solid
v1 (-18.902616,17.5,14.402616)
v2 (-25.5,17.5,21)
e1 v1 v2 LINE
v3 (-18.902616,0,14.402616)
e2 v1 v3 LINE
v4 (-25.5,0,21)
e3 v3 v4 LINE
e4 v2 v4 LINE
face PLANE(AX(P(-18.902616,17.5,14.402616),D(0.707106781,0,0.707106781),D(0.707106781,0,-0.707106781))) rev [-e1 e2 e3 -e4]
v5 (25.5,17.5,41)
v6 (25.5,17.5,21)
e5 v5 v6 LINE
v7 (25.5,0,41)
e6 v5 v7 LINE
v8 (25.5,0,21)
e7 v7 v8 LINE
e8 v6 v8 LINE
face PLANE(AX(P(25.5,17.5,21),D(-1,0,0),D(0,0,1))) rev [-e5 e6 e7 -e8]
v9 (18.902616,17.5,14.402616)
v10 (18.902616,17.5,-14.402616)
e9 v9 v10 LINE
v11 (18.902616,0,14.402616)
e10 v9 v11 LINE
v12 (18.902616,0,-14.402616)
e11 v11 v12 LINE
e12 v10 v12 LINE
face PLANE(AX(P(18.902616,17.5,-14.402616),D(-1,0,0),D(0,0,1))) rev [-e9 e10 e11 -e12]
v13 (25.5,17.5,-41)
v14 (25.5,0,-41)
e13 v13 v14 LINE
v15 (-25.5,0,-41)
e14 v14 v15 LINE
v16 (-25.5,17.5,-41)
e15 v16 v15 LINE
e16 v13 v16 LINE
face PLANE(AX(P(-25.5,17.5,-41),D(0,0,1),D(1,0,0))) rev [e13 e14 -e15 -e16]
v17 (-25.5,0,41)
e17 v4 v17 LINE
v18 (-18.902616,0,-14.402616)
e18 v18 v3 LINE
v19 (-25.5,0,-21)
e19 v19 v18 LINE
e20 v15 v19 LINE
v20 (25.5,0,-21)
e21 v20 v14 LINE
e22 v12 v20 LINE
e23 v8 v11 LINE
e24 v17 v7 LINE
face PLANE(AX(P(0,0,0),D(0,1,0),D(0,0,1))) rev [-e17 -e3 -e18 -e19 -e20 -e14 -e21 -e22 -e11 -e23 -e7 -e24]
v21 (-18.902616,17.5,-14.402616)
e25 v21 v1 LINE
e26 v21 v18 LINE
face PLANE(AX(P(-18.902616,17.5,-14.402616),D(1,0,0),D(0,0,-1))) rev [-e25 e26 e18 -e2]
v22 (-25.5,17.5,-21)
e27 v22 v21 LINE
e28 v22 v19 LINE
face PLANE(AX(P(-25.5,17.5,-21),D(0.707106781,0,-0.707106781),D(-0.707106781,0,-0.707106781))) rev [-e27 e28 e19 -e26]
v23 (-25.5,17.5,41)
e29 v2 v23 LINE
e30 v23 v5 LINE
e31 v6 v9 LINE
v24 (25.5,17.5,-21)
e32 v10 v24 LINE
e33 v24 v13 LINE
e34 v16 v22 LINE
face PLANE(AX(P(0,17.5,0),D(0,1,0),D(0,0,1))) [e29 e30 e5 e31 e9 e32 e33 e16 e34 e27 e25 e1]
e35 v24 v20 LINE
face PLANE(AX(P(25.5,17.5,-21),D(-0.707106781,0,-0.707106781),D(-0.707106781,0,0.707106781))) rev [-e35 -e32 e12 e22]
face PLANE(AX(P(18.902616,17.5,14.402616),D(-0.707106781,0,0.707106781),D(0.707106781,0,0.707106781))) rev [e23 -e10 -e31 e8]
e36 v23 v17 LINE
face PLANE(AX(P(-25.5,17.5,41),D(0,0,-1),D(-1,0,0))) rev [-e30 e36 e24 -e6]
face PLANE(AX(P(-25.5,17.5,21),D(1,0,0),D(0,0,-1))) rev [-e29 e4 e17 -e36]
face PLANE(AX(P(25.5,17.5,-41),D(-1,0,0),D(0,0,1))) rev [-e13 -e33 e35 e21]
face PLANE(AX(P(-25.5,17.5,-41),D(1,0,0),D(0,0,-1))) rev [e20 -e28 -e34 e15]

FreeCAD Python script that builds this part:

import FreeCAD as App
import Part
import Sketcher

V = App.Vector
Q = App.Units.Quantity

doc = App.newDocument("Part")
body = doc.addObject("PartDesign::Body", "Body")

sketch1 = body.newObject("Sketcher::SketchObject", "Sketch")
sketch1.AttachmentSupport = (doc.getObject("XZ_Plane"), [""])
sketch1.MapMode = "FlatFace"
sketch1.addGeometry(Part.LineSegment(V(-26, -21, 0), V(-19, -14, 0)), False)
sketch1.addGeometry(Part.LineSegment(V(-19, -14, 0), V(-19, 14, 0)), False)
sketch1.addGeometry(Part.LineSegment(V(-19, 14, 0), V(-26, 21, 0)), False)
sketch1.addGeometry(Part.LineSegment(V(-26, 21, 0), V(-26, 41, 0)), False)
sketch1.addGeometry(Part.LineSegment(V(-26, 41, 0), V(26, 41, 0)), False)
sketch1.addGeometry(Part.LineSegment(V(26, 41, 0), V(26, 21, 0)), False)
sketch1.addGeometry(Part.LineSegment(V(26, 21, 0), V(19, 14, 0)), False)
sketch1.addGeometry(Part.LineSegment(V(19, 14, 0), V(19, -14, 0)), False)
sketch1.addGeometry(Part.LineSegment(V(19, -14, 0), V(26, -21, 0)), False)
sketch1.addGeometry(Part.LineSegment(V(26, -21, 0), V(26, -41, 0)), False)
sketch1.addGeometry(Part.LineSegment(V(26, -41, 0), V(-26, -41, 0)), False)
sketch1.addGeometry(Part.LineSegment(V(-26, -41, 0), V(-26, -21, 0)), False)
sketch1.addConstraint(Sketcher.Constraint("Coincident", 0, 2, 1, 1))
sketch1.addConstraint(Sketcher.Constraint("Coincident", 1, 2, 2, 1))
sketch1.addConstraint(Sketcher.Constraint("Coincident", 2, 2, 3, 1))
sketch1.addConstraint(Sketcher.Constraint("Coincident", 3, 2, 4, 1))
sketch1.addConstraint(Sketcher.Constraint("Coincident", 4, 2, 5, 1))
sketch1.addConstraint(Sketcher.Constraint("Coincident", 5, 2, 6, 1))
sketch1.addConstraint(Sketcher.Constraint("Coincident", 6, 2, 7, 1))
sketch1.addConstraint(Sketcher.Constraint("Coincident", 7, 2, 8, 1))
sketch1.addConstraint(Sketcher.Constraint("Coincident", 8, 2, 9, 1))
sketch1.addConstraint(Sketcher.Constraint("Coincident", 9, 2, 10, 1))
sketch1.addConstraint(Sketcher.Constraint("Coincident", 10, 2, 11, 1))
sketch1.addConstraint(Sketcher.Constraint("Coincident", 11, 2, 0, 1))
sketch1.addConstraint(Sketcher.Constraint("Vertical", 1))
sketch1.addConstraint(Sketcher.Constraint("Vertical", 3))
sketch1.addConstraint(Sketcher.Constraint("Horizontal", 4))
sketch1.addConstraint(Sketcher.Constraint("Vertical", 5))
sketch1.addConstraint(Sketcher.Constraint("Vertical", 7))
sketch1.addConstraint(Sketcher.Constraint("Vertical", 9))
sketch1.addConstraint(Sketcher.Constraint("Horizontal", 10))
sketch1.addConstraint(Sketcher.Constraint("Vertical", 11))
sketch1.addConstraint(Sketcher.Constraint("Symmetric", 0, 2, 6, 2, -1, 1))
sketch1.addConstraint(Sketcher.Constraint("Symmetric", 2, 2, 8, 2, -1, 1))
sketch1.addConstraint(Sketcher.Constraint("Symmetric", 4, 2, 10, 2, -1, 1))
sketch1.addConstraint(Sketcher.Constraint("Symmetric", 2, 2, 5, 2, -2))
sketch1.addConstraint(Sketcher.Constraint("Perpendicular", 0, 2))
sketch1.addConstraint(Sketcher.Constraint("Perpendicular", 2, 6))
sketch1.addConstraint(Sketcher.Constraint("Perpendicular", 6, 8))
sketch1.addConstraint(Sketcher.Constraint("Horizontal", 1, 2, 6, 2))
sketch1.addConstraint(Sketcher.Constraint("DistanceX", 4, 1, 4, 2, Q("51 mm")))
sketch1.addConstraint(Sketcher.Constraint("DistanceY", 3, 1, 3, 2, Q("20 mm")))
sketch1.addConstraint(Sketcher.Constraint("DistanceY", -1, 1, 2, 2, Q("21 mm")))
sketch1.addConstraint(Sketcher.Constraint("Distance", 0, Q("9.33011 mm")))
pad1 = body.newObject("PartDesign::Pad", "Pad")
pad1.Profile = sketch1
pad1.Length = 17.5
pad1.Reversed = True

doc.recompute()
